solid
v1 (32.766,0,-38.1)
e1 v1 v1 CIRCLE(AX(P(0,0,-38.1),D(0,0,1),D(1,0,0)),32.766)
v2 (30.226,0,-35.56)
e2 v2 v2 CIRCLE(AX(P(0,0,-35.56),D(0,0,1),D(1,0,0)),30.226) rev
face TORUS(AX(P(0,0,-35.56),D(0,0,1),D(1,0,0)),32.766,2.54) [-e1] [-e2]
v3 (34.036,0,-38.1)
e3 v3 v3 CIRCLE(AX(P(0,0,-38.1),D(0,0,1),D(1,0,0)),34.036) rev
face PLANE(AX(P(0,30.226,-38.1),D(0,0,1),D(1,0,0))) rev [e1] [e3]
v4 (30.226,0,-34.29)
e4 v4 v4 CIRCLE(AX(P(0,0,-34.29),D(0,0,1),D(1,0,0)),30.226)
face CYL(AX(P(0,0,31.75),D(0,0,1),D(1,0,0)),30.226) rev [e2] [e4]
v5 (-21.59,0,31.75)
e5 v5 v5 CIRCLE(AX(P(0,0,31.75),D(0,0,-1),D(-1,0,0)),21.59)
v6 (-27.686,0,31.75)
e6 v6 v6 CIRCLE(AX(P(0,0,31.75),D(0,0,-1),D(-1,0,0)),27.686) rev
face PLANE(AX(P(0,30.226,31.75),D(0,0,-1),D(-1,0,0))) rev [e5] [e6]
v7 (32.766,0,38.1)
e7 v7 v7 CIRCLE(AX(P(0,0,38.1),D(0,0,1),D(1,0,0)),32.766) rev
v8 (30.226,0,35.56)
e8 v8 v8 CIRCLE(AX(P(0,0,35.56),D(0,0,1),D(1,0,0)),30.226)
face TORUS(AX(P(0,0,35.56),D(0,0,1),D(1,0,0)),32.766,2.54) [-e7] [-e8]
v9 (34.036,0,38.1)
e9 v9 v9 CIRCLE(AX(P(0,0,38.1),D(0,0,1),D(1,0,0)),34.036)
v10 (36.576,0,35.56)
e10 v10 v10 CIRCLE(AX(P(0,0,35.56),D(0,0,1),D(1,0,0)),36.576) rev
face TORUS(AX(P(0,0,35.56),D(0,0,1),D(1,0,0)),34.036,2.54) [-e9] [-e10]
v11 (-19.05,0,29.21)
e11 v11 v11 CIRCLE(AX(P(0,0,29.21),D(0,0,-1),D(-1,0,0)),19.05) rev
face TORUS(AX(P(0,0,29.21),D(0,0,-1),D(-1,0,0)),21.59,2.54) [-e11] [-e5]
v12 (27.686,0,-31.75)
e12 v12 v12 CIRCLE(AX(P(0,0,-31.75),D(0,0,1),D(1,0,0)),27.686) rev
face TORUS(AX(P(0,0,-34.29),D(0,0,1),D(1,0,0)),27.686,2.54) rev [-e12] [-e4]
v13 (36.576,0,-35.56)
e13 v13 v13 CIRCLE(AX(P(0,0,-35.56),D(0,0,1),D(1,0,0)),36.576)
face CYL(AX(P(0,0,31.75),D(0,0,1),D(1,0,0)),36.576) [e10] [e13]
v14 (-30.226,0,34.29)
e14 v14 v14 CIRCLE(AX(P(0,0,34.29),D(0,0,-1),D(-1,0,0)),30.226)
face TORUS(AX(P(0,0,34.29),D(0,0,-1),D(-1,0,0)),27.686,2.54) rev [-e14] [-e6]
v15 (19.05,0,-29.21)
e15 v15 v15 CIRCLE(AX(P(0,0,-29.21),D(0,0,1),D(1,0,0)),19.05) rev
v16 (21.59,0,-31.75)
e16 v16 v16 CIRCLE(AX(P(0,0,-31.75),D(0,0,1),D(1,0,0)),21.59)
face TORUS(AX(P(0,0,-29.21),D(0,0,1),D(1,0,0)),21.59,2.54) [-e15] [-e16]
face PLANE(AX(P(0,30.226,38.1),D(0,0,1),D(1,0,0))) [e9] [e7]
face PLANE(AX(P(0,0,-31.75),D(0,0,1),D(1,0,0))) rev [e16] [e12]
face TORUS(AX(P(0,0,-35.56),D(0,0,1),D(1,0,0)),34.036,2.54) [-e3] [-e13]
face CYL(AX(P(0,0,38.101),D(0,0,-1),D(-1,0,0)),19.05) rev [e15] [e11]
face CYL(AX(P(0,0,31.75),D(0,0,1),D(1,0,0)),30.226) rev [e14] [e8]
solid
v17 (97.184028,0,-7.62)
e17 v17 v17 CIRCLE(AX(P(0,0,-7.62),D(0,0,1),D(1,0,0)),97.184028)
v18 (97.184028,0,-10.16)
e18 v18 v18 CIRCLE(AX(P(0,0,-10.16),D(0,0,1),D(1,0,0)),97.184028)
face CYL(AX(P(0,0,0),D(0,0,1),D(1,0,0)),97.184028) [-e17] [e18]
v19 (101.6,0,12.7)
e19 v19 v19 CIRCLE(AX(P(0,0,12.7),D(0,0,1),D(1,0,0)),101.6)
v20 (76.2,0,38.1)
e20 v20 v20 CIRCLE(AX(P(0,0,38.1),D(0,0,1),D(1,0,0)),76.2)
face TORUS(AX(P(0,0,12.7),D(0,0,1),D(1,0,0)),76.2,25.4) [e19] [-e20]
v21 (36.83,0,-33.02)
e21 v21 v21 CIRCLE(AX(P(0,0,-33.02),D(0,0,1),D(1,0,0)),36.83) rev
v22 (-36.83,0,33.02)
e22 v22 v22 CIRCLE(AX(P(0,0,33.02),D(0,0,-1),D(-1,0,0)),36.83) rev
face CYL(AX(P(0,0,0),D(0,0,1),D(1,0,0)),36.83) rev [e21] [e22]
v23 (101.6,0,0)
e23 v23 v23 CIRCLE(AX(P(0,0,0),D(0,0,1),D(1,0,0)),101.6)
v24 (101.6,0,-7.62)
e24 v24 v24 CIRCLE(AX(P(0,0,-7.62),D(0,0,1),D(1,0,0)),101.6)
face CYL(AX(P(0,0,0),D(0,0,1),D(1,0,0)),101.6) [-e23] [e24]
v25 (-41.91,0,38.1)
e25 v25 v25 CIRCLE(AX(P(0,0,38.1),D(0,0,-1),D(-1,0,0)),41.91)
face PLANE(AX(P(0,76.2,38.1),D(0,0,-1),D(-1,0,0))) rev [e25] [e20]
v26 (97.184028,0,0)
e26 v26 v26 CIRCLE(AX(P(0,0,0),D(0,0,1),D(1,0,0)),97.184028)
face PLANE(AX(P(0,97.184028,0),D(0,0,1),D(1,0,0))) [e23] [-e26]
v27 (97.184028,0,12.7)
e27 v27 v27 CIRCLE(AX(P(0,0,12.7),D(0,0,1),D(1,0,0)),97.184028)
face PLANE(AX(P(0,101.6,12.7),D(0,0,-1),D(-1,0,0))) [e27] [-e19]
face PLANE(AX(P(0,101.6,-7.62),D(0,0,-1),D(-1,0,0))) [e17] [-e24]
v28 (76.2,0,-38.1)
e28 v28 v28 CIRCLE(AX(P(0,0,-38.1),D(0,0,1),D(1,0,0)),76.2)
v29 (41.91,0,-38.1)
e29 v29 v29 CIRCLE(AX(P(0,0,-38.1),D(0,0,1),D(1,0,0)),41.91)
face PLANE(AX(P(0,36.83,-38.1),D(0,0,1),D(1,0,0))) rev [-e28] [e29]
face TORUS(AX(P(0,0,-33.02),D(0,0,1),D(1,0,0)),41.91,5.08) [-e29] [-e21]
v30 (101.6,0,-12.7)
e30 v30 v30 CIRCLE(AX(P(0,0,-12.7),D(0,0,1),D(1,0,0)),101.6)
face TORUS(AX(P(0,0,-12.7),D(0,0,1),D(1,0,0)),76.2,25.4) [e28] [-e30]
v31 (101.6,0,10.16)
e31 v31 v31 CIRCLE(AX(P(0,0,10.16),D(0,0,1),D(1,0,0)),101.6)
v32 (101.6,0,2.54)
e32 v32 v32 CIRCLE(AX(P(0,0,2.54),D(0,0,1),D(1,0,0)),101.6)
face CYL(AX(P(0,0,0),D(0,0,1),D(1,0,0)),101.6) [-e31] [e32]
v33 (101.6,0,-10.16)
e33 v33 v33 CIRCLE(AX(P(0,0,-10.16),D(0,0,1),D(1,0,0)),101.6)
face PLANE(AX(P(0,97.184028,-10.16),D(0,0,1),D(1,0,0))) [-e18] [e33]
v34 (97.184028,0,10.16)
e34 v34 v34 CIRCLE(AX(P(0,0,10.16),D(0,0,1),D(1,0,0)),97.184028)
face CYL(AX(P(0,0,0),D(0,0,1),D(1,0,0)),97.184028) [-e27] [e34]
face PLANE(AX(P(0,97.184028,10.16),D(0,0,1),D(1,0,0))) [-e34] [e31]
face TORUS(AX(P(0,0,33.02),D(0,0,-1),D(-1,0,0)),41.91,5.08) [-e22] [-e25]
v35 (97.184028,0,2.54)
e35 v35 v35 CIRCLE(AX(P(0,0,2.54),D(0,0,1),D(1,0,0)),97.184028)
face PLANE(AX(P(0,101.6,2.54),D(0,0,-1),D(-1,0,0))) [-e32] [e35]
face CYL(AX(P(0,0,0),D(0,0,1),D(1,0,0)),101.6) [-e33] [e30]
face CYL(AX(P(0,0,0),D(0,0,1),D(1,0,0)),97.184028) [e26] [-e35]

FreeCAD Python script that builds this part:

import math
import FreeCAD as App
import Part
import Sketcher
Q = App.Units.Quantity


def edges_at(feature, points):
    """Names of the edges that pass closest to the given points."""
    edges = feature.Shape.Edges
    near = lambda p: min(range(len(edges)), key=lambda i: edges[i].distToShape(Part.Vertex(*p))[0])
    return sorted({f"Edge{near(p) + 1}" for p in points})

doc = App.newDocument("Part")
body = doc.addObject("PartDesign::Body", "Body")

sketch1 = body.newObject("Sketcher::SketchObject", "Sketch")
sketch1.AttachmentSupport = (doc.getObject("YZ_Plane"), [""])
sketch1.MapMode = "FlatFace"
sketch1.addGeometry([
    Part.LineSegment(App.Vector(37, -38, 0), App.Vector(37, 38, 0)),
    Part.LineSegment(App.Vector(37, 38, 0), App.Vector(30, 38, 0)),
    Part.LineSegment(App.Vector(30, 38, 0), App.Vector(30, 32, 0)),
    Part.LineSegment(App.Vector(30, 32, 0), App.Vector(0, 32, 0)),
    Part.LineSegment(App.Vector(0, 32, 0), App.Vector(0, -32, 0)),
    Part.LineSegment(App.Vector(0, -32, 0), App.Vector(30, -32, 0)),
    Part.LineSegment(App.Vector(30, -32, 0), App.Vector(30, -38, 0)),
    Part.LineSegment(App.Vector(30, -38, 0), App.Vector(37, -38, 0)),
], False)
sketch1.addConstraint([
    Sketcher.Constraint("Coincident", 0, 2, 1, 1),
    Sketcher.Constraint("Coincident", 1, 2, 2, 1),
    Sketcher.Constraint("Coincident", 2, 2, 3, 1),
    Sketcher.Constraint("Coincident", 3, 2, 4, 1),
    Sketcher.Constraint("Coincident", 4, 2, 5, 1),
    Sketcher.Constraint("Coincident", 5, 2, 6, 1),
    Sketcher.Constraint("Coincident", 6, 2, 7, 1),
    Sketcher.Constraint("Coincident", 7, 2, 0, 1),
    Sketcher.Constraint("Vertical", 0),
    Sketcher.Constraint("Horizontal", 1),
    Sketcher.Constraint("Vertical", 2),
    Sketcher.Constraint("Horizontal", 3),
    Sketcher.Constraint("Vertical", 4),
    Sketcher.Constraint("Horizontal", 5),
    Sketcher.Constraint("Vertical", 6),
    Sketcher.Constraint("Horizontal", 7),
    Sketcher.Constraint("Symmetric", 3, 2, 4, 2, -1, 1),
    Sketcher.Constraint("Symmetric", 1, 2, 6, 2, -1),
    Sketcher.Constraint("Equal", 7, 2),
    Sketcher.Constraint("DistanceY", 0, 1, 0, 2, Q("3 in")),
    Sketcher.Constraint("DistanceY", 4, 2, 4, 1, Q("2.5 in")),
    Sketcher.Constraint("DistanceX", 3, 2, 3, 1, Q("1.19 in")),
])
revolution = body.newObject("PartDesign::Revolution", "Revolution")
revolution.Profile = sketch1
revolution.ReferenceAxis = (sketch1, ["V_Axis"])
revolution.Angle = 360

sketch2 = body.newObject("Sketcher::SketchObject", "Sketch001")
sketch2.AttachmentSupport = (doc.getObject("XY_Plane"), [""])
sketch2.MapMode = "FlatFace"
sketch2.addGeometry(Part.Circle(App.Vector(0, 0, 0), App.Vector(0, 0, 1), 19), False)
sketch2.addConstraint([
    Sketcher.Constraint("Coincident", 0, 3, -1, 1),
    Sketcher.Constraint("Diameter", 0, Q("1.5 in")),
])
pocket1 = body.newObject("PartDesign::Pocket", "Pocket")
pocket1.Profile = sketch2
pocket1.Type = "ThroughAll"
pocket1.Midplane = True
doc.recompute()

fillet = body.newObject("PartDesign::Fillet", "Fillet")
fillet.Base = (pocket1, edges_at(pocket1, [
    (19.05, 0, 31.75),
    (19.05, 0, -31.75),
    (-30.226, 0, 31.75),
    (-30.226, 0, 38.1),
    (-36.576, 0, 38.1),
    (-36.576, 0, -38.1),
    (-30.226, 0, -38.1),
    (-30.226, 0, -31.75),
]))
fillet.Radius = Q("0.1 in")
body2 = doc.addObject("PartDesign::Body", "Body001")

sketch3 = body2.newObject("Sketcher::SketchObject", "Sketch002")
sketch3.AttachmentSupport = (doc.getObject("YZ_Plane001"), [""])
sketch3.MapMode = "FlatFace"
sketch3.addGeometry([
    Part.LineSegment(App.Vector(97.2, 12.7, 0), App.Vector(101.6, 12.7, 0)),
    Part.ArcOfCircle(Part.Circle(App.Vector(76.2, 12.7, 0), App.Vector(0, 0, 1), 25.4), math.radians(0), math.radians(90)),
    Part.LineSegment(App.Vector(76.2, 38.1, 0), App.Vector(36.8, 38.1, 0)),
    Part.LineSegment(App.Vector(36.8, 38.1, 0), App.Vector(36.8, -38.1, 0)),
    Part.LineSegment(App.Vector(36.8, -38.1, 0), App.Vector(76.2, -38.1, 0)),
    Part.ArcOfCircle(Part.Circle(App.Vector(76.2, -12.7, 0), App.Vector(0, 0, 1), 25.4), math.radians(-90), math.radians(0)),
    Part.LineSegment(App.Vector(101.6, -12.7, 0), App.Vector(101.6, -10.2, 0)),
    Part.LineSegment(App.Vector(101.6, -10.2, 0), App.Vector(97.2, -10.2, 0)),
    Part.LineSegment(App.Vector(97.2, -10.2, 0), App.Vector(97.2, -7.6, 0)),
    Part.LineSegment(App.Vector(97.2, -7.6, 0), App.Vector(101.6, -7.6, 0)),
    Part.LineSegment(App.Vector(101.6, -7.6, 0), App.Vector(101.6, 0, 0)),
    Part.LineSegment(App.Vector(101.6, 0, 0), App.Vector(97.2, 0, 0)),
    Part.LineSegment(App.Vector(97.2, 0, 0), App.Vector(97.2, 2.5, 0)),
    Part.LineSegment(App.Vector(97.2, 2.5, 0), App.Vector(101.6, 2.5, 0)),
    Part.LineSegment(App.Vector(101.6, 2.5, 0), App.Vector(101.6, 10.2, 0)),
    Part.LineSegment(App.Vector(101.6, 10.2, 0), App.Vector(97.2, 10.2, 0)),
    Part.LineSegment(App.Vector(97.2, 10.2, 0), App.Vector(97.2, 12.7, 0)),
], False)
sketch3.addConstraint([
    Sketcher.Constraint("Coincident", 0, 2, 1, 1),
    Sketcher.Constraint("Tangent", 1, 2, 2, 1),
    Sketcher.Constraint("Coincident", 2, 2, 3, 1),
    Sketcher.Constraint("Coincident", 3, 2, 4, 1),
    Sketcher.Constraint("Tangent", 4, 2, 5, 1),
    Sketcher.Constraint("Tangent", 5, 2, 6, 1),
    Sketcher.Constraint("Coincident", 6, 2, 7, 1),
    Sketcher.Constraint("Coincident", 7, 2, 8, 1),
    Sketcher.Constraint("Coincident", 8, 2, 9, 1),
    Sketcher.Constraint("Coincident", 9, 2, 10, 1),
    Sketcher.Constraint("Coincident", 10, 2, 11, 1),
    Sketcher.Constraint("Coincident", 11, 2, 12, 1),
    Sketcher.Constraint("Coincident", 12, 2, 13, 1),
    Sketcher.Constraint("Coincident", 13, 2, 14, 1),
    Sketcher.Constraint("Coincident", 14, 2, 15, 1),
    Sketcher.Constraint("Coincident", 15, 2, 16, 1),
    Sketcher.Constraint("Coincident", 16, 2, 0, 1),
    Sketcher.Constraint("Horizontal", 0),
    Sketcher.Constraint("Horizontal", 2),
    Sketcher.Constraint("Vertical", 3),
    Sketcher.Constraint("Horizontal", 4),
    Sketcher.Constraint("Vertical", 6),
    Sketcher.Constraint("Horizontal", 7),
    Sketcher.Constraint("Vertical", 8),
    Sketcher.Constraint("Horizontal", 9),
    Sketcher.Constraint("Vertical", 10),
    Sketcher.Constraint("Horizontal", 11),
    Sketcher.Constraint("Vertical", 12),
    Sketcher.Constraint("Horizontal", 13),
    Sketcher.Constraint("Vertical", 14),
    Sketcher.Constraint("Horizontal", 15),
    Sketcher.Constraint("Vertical", 16),
    Sketcher.Constraint("Equal", 1, 5),
    Sketcher.Constraint("Symmetric", 1, 3, 5, 3, -1),
    Sketcher.Constraint("Symmetric", 6, 2, 14, 2, -1),
    Sketcher.Constraint("PointOnObject", 10, 2, -1),
    Sketcher.Constraint("Horizontal", 1, 3, 0, 2),
    Sketcher.Constraint("Vertical", 6, 2, 9, 2),
    Sketcher.Constraint("Vertical", 8, 2, 11, 2),
    Sketcher.Constraint("Vertical", 12, 2, 15, 2),
    Sketcher.Constraint("Equal", 6, 8),
    Sketcher.Constraint("Equal", 8, 12),
    Sketcher.Constraint("Radius", 1, Q("1 in")),
    Sketcher.Constraint("DistanceY", 3, 2, 3, 1, Q("3 in")),
    Sketcher.Constraint("DistanceY", 6, 1, 6, 2, Q("0.1 in")),
    Sketcher.Constraint("DistanceX", -1, 1, 1, 3, Q("3 in")),
    Sketcher.Constraint("DistanceX", 2, 2, 2, 1, Q("1.55 in")),
    Sketcher.Constraint("DistanceX", 0, 1, 0, 2, 4.415972),
])
revolution2 = body2.newObject("PartDesign::Revolution", "Revolution001")
revolution2.Profile = sketch3
revolution2.ReferenceAxis = (sketch3, ["V_Axis"])
revolution2.Angle = 360
doc.recompute()

fillet2 = body2.newObject("PartDesign::Fillet", "Fillet001")
fillet2.Base = (revolution2, edges_at(revolution2, [(-36.83, 0, -38.1), (-36.83, 0, 38.1)]))
fillet2.Radius = Q("0.2 in")

doc.recompute()
